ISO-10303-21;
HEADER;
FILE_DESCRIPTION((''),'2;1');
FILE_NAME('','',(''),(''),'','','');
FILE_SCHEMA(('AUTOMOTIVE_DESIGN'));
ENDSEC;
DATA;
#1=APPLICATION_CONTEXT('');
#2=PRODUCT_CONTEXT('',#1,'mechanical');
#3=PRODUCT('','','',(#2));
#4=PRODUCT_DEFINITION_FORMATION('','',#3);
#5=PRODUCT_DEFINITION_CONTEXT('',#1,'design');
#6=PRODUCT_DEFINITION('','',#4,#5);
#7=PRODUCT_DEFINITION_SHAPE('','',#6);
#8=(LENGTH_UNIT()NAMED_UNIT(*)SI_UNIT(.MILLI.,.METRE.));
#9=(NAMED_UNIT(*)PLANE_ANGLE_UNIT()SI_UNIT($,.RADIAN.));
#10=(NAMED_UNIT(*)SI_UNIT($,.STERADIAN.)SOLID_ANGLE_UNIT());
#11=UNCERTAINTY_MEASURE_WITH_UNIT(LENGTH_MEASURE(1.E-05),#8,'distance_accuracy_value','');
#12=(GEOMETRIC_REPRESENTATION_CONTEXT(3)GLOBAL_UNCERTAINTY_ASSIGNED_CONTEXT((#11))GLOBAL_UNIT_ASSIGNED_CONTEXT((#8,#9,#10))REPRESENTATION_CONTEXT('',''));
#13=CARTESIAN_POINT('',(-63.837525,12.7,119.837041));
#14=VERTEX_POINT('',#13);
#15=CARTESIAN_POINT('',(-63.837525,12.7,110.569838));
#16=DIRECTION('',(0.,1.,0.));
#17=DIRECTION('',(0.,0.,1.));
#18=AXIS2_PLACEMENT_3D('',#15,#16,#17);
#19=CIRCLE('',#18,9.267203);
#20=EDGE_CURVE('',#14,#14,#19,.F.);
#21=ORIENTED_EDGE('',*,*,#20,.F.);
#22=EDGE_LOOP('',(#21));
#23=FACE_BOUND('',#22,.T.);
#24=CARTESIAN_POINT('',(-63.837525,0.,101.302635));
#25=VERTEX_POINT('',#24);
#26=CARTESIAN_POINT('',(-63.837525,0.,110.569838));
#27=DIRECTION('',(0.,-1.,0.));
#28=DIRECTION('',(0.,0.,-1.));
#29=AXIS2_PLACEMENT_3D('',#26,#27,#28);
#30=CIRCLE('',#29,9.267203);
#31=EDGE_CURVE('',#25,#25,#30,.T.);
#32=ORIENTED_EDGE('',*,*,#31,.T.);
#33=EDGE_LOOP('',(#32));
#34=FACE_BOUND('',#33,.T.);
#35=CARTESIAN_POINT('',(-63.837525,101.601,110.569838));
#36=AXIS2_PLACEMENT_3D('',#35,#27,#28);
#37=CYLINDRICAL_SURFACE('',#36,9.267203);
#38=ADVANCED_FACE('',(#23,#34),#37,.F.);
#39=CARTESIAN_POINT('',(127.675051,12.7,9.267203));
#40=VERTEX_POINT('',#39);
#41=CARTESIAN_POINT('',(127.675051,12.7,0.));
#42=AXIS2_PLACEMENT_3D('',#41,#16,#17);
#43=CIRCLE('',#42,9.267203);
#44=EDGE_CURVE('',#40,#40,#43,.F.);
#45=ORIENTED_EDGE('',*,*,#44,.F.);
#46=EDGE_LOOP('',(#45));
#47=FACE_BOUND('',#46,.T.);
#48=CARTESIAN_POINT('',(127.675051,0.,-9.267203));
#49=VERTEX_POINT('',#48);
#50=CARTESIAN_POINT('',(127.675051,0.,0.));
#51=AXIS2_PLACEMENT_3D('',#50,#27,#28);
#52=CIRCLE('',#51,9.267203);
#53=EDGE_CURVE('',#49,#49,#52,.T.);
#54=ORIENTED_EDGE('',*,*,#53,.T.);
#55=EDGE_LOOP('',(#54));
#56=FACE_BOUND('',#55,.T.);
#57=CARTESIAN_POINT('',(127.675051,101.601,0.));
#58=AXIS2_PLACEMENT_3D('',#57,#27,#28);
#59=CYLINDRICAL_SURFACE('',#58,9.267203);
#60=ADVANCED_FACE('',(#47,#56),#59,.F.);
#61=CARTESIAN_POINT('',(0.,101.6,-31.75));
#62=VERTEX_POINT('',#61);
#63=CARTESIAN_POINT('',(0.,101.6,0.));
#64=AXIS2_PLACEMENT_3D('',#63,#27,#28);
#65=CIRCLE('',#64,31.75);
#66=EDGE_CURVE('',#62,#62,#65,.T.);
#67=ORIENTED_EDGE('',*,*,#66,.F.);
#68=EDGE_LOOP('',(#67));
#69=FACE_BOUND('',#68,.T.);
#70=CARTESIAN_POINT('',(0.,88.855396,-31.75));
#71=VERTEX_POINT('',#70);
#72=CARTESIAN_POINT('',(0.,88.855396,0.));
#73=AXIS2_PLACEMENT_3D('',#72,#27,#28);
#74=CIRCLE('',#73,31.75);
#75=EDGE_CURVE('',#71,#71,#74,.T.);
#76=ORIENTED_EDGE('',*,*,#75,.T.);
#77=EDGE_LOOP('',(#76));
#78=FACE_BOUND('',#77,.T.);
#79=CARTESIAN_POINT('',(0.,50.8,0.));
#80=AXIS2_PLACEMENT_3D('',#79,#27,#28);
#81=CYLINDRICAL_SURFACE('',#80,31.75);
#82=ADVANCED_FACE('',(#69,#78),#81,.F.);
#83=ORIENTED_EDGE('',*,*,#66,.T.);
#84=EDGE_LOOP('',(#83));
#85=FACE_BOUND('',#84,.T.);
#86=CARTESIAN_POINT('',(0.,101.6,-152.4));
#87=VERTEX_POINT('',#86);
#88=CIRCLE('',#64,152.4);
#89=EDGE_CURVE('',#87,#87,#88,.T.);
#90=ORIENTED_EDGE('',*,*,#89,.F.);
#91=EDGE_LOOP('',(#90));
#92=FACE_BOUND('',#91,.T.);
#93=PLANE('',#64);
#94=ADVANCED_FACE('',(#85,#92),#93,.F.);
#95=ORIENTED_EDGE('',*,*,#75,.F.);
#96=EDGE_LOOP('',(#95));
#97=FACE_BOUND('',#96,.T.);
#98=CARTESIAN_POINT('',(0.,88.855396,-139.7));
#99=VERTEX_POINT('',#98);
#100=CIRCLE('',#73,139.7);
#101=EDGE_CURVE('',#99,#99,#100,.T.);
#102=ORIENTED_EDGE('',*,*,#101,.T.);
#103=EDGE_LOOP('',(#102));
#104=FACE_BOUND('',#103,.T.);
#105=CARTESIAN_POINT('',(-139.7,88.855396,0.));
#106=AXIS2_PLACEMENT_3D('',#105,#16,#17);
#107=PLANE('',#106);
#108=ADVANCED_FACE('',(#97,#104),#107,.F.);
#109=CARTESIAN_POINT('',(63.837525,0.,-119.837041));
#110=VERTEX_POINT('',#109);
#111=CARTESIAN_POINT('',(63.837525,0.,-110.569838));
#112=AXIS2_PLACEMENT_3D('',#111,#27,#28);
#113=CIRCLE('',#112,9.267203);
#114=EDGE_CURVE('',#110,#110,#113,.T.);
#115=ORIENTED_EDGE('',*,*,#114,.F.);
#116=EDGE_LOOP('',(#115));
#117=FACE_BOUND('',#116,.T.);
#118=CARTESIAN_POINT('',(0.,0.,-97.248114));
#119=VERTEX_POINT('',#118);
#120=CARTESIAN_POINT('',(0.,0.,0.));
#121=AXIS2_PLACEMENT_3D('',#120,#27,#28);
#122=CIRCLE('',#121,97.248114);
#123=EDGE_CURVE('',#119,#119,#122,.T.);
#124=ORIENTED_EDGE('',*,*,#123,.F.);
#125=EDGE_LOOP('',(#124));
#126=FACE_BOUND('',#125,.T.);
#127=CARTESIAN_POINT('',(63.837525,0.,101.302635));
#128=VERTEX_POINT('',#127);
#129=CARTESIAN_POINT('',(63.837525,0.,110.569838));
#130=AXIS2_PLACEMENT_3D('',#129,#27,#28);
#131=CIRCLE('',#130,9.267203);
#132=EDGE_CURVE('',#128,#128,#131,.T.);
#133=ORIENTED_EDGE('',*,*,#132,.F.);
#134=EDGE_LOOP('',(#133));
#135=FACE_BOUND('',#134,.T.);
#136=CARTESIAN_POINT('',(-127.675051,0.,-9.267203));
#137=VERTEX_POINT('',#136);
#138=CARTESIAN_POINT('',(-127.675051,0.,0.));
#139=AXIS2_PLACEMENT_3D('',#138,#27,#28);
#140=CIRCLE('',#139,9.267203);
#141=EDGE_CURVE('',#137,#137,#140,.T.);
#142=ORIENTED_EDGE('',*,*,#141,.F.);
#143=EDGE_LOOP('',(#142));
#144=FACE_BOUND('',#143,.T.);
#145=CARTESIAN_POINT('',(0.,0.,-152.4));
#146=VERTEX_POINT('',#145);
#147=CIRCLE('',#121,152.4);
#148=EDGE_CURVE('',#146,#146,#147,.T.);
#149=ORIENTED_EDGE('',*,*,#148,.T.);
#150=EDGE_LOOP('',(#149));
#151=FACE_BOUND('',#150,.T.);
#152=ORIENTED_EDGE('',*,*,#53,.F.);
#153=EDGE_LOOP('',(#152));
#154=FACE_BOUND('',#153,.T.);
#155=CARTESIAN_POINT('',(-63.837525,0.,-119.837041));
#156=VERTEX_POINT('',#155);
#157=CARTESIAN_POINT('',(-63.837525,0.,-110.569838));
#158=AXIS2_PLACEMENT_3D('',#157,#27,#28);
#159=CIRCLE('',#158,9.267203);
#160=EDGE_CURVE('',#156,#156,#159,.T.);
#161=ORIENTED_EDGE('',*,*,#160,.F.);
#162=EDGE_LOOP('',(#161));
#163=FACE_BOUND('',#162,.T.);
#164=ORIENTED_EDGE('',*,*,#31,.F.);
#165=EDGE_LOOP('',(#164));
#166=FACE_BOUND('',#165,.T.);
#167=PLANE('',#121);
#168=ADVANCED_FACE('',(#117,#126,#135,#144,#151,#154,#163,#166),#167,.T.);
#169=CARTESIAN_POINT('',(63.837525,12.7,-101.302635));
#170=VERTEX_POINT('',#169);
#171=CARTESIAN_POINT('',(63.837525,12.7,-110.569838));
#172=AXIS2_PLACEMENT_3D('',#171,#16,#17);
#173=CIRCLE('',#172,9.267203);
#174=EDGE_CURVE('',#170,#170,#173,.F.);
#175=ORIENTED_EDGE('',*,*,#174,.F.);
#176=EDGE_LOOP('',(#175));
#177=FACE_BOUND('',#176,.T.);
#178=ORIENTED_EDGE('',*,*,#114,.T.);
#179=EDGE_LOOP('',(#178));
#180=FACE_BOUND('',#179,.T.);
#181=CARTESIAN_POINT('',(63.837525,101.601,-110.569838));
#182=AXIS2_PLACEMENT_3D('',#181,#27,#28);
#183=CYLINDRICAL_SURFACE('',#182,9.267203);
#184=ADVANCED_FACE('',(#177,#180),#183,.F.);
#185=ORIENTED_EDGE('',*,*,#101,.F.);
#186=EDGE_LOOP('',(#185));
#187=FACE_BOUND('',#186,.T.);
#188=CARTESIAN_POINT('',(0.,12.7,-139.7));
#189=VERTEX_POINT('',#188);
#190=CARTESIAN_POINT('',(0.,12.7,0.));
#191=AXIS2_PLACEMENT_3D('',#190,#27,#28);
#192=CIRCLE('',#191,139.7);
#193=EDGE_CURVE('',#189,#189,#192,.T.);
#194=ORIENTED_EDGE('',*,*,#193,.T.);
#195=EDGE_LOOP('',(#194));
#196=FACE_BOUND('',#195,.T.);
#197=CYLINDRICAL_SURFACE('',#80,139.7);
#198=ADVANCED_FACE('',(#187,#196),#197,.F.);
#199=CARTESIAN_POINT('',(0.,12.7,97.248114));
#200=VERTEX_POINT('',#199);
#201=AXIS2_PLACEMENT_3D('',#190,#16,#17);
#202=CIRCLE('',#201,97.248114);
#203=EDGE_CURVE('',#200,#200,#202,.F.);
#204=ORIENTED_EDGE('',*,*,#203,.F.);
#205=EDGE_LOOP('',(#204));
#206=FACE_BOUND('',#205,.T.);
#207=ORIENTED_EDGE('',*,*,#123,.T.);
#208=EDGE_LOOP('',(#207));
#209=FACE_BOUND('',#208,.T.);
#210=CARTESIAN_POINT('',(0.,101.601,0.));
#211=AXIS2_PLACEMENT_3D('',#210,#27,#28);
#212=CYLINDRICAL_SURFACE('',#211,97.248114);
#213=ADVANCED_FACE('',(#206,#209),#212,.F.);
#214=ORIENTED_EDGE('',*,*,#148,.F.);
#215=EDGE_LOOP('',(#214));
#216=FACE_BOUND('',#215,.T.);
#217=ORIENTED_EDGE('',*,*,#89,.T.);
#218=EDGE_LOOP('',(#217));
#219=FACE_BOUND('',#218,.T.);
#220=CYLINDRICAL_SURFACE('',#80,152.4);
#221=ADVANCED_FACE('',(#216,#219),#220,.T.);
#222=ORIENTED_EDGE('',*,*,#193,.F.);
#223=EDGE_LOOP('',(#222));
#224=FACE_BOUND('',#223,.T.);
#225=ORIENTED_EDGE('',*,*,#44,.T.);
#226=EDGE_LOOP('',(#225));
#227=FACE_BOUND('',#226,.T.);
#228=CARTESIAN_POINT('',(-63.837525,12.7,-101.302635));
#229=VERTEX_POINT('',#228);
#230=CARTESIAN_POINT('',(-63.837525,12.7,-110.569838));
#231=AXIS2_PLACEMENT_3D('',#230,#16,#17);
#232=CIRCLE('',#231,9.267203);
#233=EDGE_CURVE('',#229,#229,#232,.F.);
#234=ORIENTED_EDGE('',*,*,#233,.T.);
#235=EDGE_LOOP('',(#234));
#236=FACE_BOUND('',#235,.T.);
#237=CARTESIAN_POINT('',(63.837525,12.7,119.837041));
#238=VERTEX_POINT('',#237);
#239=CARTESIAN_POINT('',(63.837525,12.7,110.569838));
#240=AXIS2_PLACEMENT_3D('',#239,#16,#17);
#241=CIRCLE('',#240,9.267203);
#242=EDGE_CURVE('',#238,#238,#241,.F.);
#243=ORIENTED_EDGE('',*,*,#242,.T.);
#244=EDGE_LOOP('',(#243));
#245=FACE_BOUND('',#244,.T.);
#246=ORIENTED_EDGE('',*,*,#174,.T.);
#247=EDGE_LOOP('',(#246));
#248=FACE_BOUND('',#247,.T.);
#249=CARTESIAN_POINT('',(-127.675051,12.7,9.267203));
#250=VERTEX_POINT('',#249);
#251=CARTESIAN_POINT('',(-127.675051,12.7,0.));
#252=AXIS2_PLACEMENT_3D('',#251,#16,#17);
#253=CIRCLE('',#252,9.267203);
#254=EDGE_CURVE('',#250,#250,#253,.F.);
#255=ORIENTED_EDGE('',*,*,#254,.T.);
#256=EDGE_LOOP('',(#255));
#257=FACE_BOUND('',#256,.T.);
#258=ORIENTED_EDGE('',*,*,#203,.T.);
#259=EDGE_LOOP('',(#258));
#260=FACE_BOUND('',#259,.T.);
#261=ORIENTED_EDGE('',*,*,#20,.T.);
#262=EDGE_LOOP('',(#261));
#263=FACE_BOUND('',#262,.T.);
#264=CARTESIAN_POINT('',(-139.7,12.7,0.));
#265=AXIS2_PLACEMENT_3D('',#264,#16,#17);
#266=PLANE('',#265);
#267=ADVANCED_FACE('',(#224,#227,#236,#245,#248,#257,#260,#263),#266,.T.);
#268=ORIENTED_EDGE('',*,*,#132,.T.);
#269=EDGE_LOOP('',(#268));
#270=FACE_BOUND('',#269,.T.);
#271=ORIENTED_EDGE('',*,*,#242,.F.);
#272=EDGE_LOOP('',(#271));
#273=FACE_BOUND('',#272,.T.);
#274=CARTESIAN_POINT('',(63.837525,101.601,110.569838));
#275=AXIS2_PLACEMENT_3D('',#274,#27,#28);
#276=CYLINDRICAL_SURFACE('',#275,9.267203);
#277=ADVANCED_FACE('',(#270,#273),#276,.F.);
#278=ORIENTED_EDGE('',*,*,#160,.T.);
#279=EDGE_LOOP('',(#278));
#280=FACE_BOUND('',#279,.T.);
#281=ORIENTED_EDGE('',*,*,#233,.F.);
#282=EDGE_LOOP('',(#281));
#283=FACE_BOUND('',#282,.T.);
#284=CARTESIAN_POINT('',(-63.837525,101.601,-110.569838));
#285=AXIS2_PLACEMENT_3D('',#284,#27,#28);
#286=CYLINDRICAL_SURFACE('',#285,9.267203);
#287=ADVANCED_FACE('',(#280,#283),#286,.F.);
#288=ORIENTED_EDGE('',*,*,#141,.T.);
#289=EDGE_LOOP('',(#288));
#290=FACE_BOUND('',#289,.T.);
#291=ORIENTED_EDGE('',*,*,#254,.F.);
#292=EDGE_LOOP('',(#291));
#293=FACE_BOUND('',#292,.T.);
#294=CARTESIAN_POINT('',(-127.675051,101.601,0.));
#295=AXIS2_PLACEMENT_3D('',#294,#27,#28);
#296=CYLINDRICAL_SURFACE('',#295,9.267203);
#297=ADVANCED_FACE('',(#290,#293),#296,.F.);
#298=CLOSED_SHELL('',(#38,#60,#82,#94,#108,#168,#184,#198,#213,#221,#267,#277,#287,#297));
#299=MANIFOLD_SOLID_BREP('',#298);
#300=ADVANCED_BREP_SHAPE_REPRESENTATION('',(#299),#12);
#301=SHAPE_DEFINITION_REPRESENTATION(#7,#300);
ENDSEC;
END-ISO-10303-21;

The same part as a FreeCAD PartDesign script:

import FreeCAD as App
import Part
import Sketcher
from FreeCAD import Vector
Q = App.Units.Quantity


def add_polygon(sketch, points):
    """Adds a closed chain of lines whose ends are joined by coincident constraints."""
    first, n = sketch.GeometryCount, len(points)
    for a, b in zip(points, points[1:] + points[:1]):
        sketch.addGeometry(Part.LineSegment(App.Vector(*a, 0), App.Vector(*b, 0)), False)
    for i in range(n):
        sketch.addConstraint(Sketcher.Constraint("Coincident", first + i, 2, first + (i + 1) % n, 1))

doc = App.newDocument("Part")
body = doc.addObject("PartDesign::Body", "Body")

sketch1 = body.newObject("Sketcher::SketchObject", "Sketch")
sketch1.AttachmentSupport = (doc.getObject("XY_Plane"), [""])
sketch1.MapMode = "FlatFace"
add_polygon(sketch1, [(-152.4, 0), (0, 0), (0, 12.7), (-139.7, 12.7), (-139.7, 88.855396), (-31.75, 88.855396), (-31.75, 101.6), (-152.4, 101.6)])
sketch1.addConstraint([
    Sketcher.Constraint("Horizontal", 0),
    Sketcher.Constraint("Vertical", 1),
    Sketcher.Constraint("Horizontal", 2),
    Sketcher.Constraint("Vertical", 3),
    Sketcher.Constraint("Horizontal", 4),
    Sketcher.Constraint("Vertical", 5),
    Sketcher.Constraint("Horizontal", 6),
    Sketcher.Constraint("Vertical", 7),
    Sketcher.Constraint("Coincident", 0, 2, -1, 1),
    Sketcher.Constraint("DistanceX", 0, 1, 0, 2, Q("6 in")),
    Sketcher.Constraint("DistanceY", 7, 2, 7, 1, Q("4 in")),
    Sketcher.Constraint("DistanceX", 2, 2, 2, 1, Q("5.5 in")),
    Sketcher.Constraint("DistanceY", 1, 1, 1, 2, Q("0.5 in")),
    Sketcher.Constraint("DistanceX", 4, 1, 4, 2, Q("4.25 in")),
    Sketcher.Constraint("DistanceY", 3, 1, 3, 2, Q("76.155396 mm")),
])
revolution = body.newObject("PartDesign::Revolution", "Revolution")
revolution.Profile = sketch1
revolution.ReferenceAxis = (sketch1, ["V_Axis"])
revolution.Angle = 360

sketch2 = body.newObject("Sketcher::SketchObject", "Sketch001")
sketch2.AttachmentSupport = (doc.getObject("XZ_Plane"), [""])
sketch2.MapMode = "FlatFace"
sketch2.addGeometry(Part.Circle(Vector(0, 0, 0), Vector(0, 0, 1), 97.248114), False)
sketch2.addConstraint([
    Sketcher.Constraint("Coincident", 0, 3, -1, 1),
    Sketcher.Constraint("Diameter", 0, Q("194.496227 mm")),
])
pocket1 = body.newObject("PartDesign::Pocket", "Pocket")
pocket1.Profile = sketch2
pocket1.Type = "UpToFirst"

sketch3 = body.newObject("Sketcher::SketchObject", "Sketch002")
sketch3.AttachmentSupport = (doc.getObject("XZ_Plane"), [""])
sketch3.MapMode = "FlatFace"
sketch3.addGeometry(Part.Circle(Vector(127.675051, 0, 0), Vector(0, 0, 1), 9.267203), False)
sketch3.addConstraint([
    Sketcher.Constraint("PointOnObject", 0, 3, -1),
    Sketcher.Constraint("Diameter", 0, Q("18.534406 mm")),
    Sketcher.Constraint("DistanceX", -1, 1, 0, 3, Q("127.675051 mm")),
])
pocket2 = body.newObject("PartDesign::Pocket", "Pocket001")
pocket2.Profile = sketch3
pocket2.Type = "UpToFirst"

sketch4 = body.newObject("Sketcher::SketchObject", "Sketch003")
sketch4.AttachmentSupport = (doc.getObject("XZ_Plane"), [""])
sketch4.MapMode = "FlatFace"
sketch4.addGeometry(Part.Circle(Vector(63.837525, -110.569838, 0), Vector(0, 0, 1), 9.267203), False)
sketch4.addConstraint([
    Sketcher.Constraint("Diameter", 0, Q("18.534406 mm")),
    Sketcher.Constraint("DistanceX", -1, 1, 0, 3, Q("63.837525 mm")),
    Sketcher.Constraint("DistanceY", 0, 3, -1, 1, Q("110.569838 mm")),
])
pocket3 = body.newObject("PartDesign::Pocket", "Pocket002")
pocket3.Profile = sketch4
pocket3.Type = "UpToFirst"

sketch5 = body.newObject("Sketcher::SketchObject", "Sketch004")
sketch5.AttachmentSupport = (doc.getObject("XZ_Plane"), [""])
sketch5.MapMode = "FlatFace"
sketch5.addGeometry(Part.Circle(Vector(-63.837525, -110.569838, 0), Vector(0, 0, 1), 9.267203), False)
sketch5.addConstraint([
    Sketcher.Constraint("Diameter", 0, Q("18.534406 mm")),
    Sketcher.Constraint("DistanceX", 0, 3, -1, 1, Q("63.837525 mm")),
    Sketcher.Constraint("DistanceY", 0, 3, -1, 1, Q("110.569838 mm")),
])
pocket4 = body.newObject("PartDesign::Pocket", "Pocket003")
pocket4.Profile = sketch5
pocket4.Type = "UpToFirst"

sketch6 = body.newObject("Sketcher::SketchObject", "Sketch005")
sketch6.AttachmentSupport = (doc.getObject("XZ_Plane"), [""])
sketch6.MapMode = "FlatFace"
sketch6.addGeometry(Part.Circle(Vector(-127.675051, 0, 0), Vector(0, 0, 1), 9.267203), False)
sketch6.addConstraint([
    Sketcher.Constraint("PointOnObject", 0, 3, -1),
    Sketcher.Constraint("Diameter", 0, Q("18.534406 mm")),
    Sketcher.Constraint("DistanceX", 0, 3, -1, 1, Q("127.675051 mm")),
])
pocket5 = body.newObject("PartDesign::Pocket", "Pocket004")
pocket5.Profile = sketch6
pocket5.Type = "UpToFirst"

sketch7 = body.newObject("Sketcher::SketchObject", "Sketch006")
sketch7.AttachmentSupport = (doc.getObject("XZ_Plane"), [""])
sketch7.MapMode = "FlatFace"
sketch7.addGeometry(Part.Circle(Vector(-63.837525, 110.569838, 0), Vector(0, 0, 1), 9.267203), False)
sketch7.addConstraint([
    Sketcher.Constraint("Diameter", 0, Q("18.534406 mm")),
    Sketcher.Constraint("DistanceX", 0, 3, -1, 1, Q("63.837525 mm")),
    Sketcher.Constraint("DistanceY", -1, 1, 0, 3, Q("110.569838 mm")),
])
pocket6 = body.newObject("PartDesign::Pocket", "Pocket005")
pocket6.Profile = sketch7
pocket6.Type = "UpToFirst"

sketch8 = body.newObject("Sketcher::SketchObject", "Sketch007")
sketch8.AttachmentSupport = (doc.getObject("XZ_Plane"), [""])
sketch8.MapMode = "FlatFace"
sketch8.addGeometry(Part.Circle(Vector(63.837525, 110.569838, 0), Vector(0, 0, 1), 9.267203), False)
sketch8.addConstraint([
    Sketcher.Constraint("Diameter", 0, Q("18.534406 mm")),
    Sketcher.Constraint("DistanceX", -1, 1, 0, 3, Q("63.837525 mm")),
    Sketcher.Constraint("DistanceY", -1, 1, 0, 3, Q("110.569838 mm")),
])
pocket7 = body.newObject("PartDesign::Pocket", "Pocket006")
pocket7.Profile = sketch8
pocket7.Type = "UpToFirst"

doc.recompute()
